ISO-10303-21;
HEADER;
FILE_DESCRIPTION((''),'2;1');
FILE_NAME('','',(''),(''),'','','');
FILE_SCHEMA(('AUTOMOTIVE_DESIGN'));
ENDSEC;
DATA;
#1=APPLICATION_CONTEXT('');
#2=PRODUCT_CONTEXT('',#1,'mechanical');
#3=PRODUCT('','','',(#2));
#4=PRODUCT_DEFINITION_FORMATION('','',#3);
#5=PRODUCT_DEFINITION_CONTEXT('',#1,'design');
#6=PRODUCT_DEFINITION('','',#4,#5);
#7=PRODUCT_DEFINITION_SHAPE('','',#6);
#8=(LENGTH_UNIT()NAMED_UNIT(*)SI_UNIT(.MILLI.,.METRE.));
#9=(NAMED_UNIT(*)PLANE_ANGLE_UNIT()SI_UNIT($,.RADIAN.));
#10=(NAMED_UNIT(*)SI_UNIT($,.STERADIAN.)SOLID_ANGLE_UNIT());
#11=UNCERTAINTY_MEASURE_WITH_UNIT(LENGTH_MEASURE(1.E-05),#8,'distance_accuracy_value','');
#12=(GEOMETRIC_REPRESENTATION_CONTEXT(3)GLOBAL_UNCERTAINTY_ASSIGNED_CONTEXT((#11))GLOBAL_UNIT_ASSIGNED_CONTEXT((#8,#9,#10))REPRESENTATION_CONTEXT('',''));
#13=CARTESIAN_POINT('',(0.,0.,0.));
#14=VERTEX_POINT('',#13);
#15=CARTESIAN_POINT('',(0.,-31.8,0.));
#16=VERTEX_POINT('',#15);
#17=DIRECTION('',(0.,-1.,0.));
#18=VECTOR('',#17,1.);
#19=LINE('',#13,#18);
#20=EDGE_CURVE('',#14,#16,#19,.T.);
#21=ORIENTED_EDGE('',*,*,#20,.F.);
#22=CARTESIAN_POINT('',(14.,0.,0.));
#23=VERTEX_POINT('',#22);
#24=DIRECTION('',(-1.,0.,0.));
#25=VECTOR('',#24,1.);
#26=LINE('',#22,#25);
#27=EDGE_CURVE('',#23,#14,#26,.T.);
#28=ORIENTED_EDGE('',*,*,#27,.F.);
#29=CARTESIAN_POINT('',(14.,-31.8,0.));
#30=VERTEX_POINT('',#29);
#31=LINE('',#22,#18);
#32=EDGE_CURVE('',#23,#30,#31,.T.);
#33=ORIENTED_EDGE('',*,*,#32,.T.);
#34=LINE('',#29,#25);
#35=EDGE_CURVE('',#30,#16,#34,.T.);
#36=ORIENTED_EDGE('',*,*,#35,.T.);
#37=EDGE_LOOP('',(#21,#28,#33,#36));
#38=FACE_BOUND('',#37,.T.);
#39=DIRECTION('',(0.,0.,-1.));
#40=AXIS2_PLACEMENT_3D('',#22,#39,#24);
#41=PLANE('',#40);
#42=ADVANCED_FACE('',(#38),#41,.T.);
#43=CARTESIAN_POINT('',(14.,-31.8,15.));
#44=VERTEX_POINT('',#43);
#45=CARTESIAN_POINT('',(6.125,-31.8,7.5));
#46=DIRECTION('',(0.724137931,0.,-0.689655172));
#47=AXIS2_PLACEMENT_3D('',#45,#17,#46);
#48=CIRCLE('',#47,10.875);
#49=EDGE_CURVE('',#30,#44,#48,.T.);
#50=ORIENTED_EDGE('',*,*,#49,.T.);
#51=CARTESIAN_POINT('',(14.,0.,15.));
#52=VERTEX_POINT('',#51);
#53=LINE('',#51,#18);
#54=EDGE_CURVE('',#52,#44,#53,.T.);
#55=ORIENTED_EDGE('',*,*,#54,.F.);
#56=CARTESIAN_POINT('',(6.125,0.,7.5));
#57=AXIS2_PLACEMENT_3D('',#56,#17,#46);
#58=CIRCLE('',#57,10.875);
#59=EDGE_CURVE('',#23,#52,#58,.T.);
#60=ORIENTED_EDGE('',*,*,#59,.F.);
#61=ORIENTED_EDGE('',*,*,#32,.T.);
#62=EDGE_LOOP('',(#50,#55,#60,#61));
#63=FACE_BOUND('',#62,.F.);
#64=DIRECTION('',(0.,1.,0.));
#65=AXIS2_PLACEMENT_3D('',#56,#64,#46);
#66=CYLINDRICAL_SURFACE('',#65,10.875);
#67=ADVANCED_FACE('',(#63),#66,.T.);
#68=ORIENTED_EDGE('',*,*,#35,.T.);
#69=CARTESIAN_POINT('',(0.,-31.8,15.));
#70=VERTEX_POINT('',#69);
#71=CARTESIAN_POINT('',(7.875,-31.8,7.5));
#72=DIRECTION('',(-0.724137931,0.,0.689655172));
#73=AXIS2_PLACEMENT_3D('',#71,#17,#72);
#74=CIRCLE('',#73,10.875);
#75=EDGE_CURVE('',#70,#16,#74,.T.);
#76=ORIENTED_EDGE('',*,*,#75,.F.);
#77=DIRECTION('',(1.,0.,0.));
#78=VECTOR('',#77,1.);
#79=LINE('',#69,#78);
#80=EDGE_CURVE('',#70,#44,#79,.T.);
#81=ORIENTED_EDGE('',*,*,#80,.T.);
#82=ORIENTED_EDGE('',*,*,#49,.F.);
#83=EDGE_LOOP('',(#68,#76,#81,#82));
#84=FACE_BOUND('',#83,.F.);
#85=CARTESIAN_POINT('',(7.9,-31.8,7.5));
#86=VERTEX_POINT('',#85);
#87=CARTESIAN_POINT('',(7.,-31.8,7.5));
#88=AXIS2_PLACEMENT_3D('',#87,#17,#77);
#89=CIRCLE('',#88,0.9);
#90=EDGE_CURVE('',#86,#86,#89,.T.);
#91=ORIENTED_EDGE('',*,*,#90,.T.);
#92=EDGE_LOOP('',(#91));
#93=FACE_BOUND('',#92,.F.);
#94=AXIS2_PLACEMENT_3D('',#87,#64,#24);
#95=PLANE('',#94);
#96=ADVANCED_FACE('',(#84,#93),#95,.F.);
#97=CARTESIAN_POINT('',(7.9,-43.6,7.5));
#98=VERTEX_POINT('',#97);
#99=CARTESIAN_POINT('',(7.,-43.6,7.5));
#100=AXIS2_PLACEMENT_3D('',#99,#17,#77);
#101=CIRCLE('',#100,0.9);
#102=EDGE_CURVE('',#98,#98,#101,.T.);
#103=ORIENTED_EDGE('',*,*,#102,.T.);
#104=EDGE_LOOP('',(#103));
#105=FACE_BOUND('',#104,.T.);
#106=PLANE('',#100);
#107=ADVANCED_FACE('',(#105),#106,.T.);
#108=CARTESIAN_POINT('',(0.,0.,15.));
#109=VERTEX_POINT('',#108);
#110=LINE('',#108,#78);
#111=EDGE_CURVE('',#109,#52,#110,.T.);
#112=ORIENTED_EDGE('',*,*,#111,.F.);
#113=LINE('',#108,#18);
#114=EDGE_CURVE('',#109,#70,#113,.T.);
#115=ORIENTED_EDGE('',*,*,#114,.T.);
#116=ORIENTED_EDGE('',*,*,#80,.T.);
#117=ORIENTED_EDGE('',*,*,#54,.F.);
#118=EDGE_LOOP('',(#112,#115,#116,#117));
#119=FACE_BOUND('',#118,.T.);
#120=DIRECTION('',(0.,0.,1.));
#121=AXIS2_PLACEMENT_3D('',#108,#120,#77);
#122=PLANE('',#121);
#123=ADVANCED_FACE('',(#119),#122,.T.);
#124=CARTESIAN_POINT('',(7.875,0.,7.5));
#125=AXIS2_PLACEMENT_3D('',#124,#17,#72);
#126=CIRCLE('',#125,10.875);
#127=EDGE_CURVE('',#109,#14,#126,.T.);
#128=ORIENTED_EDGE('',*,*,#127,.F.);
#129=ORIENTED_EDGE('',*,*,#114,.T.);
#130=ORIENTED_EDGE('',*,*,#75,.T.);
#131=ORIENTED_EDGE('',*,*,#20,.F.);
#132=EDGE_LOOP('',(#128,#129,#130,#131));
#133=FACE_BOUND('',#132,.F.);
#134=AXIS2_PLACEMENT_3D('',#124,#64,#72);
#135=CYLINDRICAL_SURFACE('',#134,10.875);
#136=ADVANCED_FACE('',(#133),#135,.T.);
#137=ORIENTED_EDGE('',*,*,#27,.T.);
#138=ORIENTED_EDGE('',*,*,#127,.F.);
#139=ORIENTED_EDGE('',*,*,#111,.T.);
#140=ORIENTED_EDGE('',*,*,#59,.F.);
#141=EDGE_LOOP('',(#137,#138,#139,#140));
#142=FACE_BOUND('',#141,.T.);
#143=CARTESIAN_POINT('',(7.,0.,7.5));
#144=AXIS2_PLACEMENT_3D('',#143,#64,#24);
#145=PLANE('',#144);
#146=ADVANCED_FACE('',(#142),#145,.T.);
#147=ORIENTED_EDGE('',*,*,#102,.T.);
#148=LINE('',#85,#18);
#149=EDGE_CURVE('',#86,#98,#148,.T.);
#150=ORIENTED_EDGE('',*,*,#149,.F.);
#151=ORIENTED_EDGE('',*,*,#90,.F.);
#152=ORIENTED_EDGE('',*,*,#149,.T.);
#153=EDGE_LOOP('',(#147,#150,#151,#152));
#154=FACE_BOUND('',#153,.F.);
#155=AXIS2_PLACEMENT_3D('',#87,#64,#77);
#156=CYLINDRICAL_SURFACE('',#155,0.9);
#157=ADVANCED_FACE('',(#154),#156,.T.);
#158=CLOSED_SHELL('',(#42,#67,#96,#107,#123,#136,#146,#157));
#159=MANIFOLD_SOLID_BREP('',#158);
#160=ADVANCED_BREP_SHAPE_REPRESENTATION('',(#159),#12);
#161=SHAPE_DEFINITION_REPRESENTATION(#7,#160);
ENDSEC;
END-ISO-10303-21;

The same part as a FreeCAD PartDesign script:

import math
import FreeCAD as App
import Part
import Sketcher

V = App.Vector

doc = App.newDocument("Part")
body = doc.addObject("PartDesign::Body", "Body")

sketch1 = body.newObject("Sketcher::SketchObject", "Sketch")
sketch1.AttachmentSupport = (doc.getObject("XZ_Plane"), [""])
sketch1.MapMode = "FlatFace"
sketch1.addGeometry([
    Part.LineSegment(V(14, 15, 0), V(0, 15, 0)),
    Part.ArcOfCircle(Part.Circle(V(8, 8, 0), V(0, 0, 1), 11), math.radians(136), math.radians(224)),
    Part.LineSegment(V(0, 0, 0), V(14, 0, 0)),
    Part.ArcOfCircle(Part.Circle(V(6, 8, 0), V(0, 0, 1), 11), math.radians(-44), math.radians(44)),
], False)
sketch1.addConstraint([
    Sketcher.Constraint("Coincident", 0, 2, 1, 1),
    Sketcher.Constraint("Coincident", 1, 2, 2, 1),
    Sketcher.Constraint("Coincident", 2, 2, 3, 1),
    Sketcher.Constraint("Coincident", 3, 2, 0, 1),
    Sketcher.Constraint("Horizontal", 0),
    Sketcher.Constraint("Horizontal", 2),
    Sketcher.Constraint("Coincident", 1, 2, -1, 1),
    Sketcher.Constraint("Equal", 1, 3),
    Sketcher.Constraint("PointOnObject", 0, 2, -2),
    Sketcher.Constraint("Horizontal", 1, 3, 3, 3),
    Sketcher.Constraint("DistanceX", 0, 2, 0, 1, 14.0),
    Sketcher.Constraint("DistanceY", -1, 1, 0, 2, 15.0),
    Sketcher.Constraint("Radius", 1, 10.875),
])
pad1 = body.newObject("PartDesign::Pad", "Pad")
pad1.Profile = sketch1
pad1.Length = 31.8

sketch2 = body.newObject("Sketcher::SketchObject", "Sketch001")
sketch2.AttachmentSupport = (doc.getObject("XZ_Plane"), [""])
sketch2.MapMode = "FlatFace"
sketch2.AttachmentOffset = App.Placement(V(0, 0, 31.8), App.Rotation())
sketch2.addGeometry(Part.Circle(V(7, 7.5, 0), V(0, 0, 1), 0.9), False)
sketch2.addConstraint([
    Sketcher.Constraint("Diameter", 0, 1.8),
    Sketcher.Constraint("DistanceX", -1, 1, 0, 3, 7.0),
    Sketcher.Constraint("DistanceY", -1, 1, 0, 3, 7.5),
])
pad2 = body.newObject("PartDesign::Pad", "Pad001")
pad2.Profile = sketch2
pad2.Length = 11.8

doc.recompute()
